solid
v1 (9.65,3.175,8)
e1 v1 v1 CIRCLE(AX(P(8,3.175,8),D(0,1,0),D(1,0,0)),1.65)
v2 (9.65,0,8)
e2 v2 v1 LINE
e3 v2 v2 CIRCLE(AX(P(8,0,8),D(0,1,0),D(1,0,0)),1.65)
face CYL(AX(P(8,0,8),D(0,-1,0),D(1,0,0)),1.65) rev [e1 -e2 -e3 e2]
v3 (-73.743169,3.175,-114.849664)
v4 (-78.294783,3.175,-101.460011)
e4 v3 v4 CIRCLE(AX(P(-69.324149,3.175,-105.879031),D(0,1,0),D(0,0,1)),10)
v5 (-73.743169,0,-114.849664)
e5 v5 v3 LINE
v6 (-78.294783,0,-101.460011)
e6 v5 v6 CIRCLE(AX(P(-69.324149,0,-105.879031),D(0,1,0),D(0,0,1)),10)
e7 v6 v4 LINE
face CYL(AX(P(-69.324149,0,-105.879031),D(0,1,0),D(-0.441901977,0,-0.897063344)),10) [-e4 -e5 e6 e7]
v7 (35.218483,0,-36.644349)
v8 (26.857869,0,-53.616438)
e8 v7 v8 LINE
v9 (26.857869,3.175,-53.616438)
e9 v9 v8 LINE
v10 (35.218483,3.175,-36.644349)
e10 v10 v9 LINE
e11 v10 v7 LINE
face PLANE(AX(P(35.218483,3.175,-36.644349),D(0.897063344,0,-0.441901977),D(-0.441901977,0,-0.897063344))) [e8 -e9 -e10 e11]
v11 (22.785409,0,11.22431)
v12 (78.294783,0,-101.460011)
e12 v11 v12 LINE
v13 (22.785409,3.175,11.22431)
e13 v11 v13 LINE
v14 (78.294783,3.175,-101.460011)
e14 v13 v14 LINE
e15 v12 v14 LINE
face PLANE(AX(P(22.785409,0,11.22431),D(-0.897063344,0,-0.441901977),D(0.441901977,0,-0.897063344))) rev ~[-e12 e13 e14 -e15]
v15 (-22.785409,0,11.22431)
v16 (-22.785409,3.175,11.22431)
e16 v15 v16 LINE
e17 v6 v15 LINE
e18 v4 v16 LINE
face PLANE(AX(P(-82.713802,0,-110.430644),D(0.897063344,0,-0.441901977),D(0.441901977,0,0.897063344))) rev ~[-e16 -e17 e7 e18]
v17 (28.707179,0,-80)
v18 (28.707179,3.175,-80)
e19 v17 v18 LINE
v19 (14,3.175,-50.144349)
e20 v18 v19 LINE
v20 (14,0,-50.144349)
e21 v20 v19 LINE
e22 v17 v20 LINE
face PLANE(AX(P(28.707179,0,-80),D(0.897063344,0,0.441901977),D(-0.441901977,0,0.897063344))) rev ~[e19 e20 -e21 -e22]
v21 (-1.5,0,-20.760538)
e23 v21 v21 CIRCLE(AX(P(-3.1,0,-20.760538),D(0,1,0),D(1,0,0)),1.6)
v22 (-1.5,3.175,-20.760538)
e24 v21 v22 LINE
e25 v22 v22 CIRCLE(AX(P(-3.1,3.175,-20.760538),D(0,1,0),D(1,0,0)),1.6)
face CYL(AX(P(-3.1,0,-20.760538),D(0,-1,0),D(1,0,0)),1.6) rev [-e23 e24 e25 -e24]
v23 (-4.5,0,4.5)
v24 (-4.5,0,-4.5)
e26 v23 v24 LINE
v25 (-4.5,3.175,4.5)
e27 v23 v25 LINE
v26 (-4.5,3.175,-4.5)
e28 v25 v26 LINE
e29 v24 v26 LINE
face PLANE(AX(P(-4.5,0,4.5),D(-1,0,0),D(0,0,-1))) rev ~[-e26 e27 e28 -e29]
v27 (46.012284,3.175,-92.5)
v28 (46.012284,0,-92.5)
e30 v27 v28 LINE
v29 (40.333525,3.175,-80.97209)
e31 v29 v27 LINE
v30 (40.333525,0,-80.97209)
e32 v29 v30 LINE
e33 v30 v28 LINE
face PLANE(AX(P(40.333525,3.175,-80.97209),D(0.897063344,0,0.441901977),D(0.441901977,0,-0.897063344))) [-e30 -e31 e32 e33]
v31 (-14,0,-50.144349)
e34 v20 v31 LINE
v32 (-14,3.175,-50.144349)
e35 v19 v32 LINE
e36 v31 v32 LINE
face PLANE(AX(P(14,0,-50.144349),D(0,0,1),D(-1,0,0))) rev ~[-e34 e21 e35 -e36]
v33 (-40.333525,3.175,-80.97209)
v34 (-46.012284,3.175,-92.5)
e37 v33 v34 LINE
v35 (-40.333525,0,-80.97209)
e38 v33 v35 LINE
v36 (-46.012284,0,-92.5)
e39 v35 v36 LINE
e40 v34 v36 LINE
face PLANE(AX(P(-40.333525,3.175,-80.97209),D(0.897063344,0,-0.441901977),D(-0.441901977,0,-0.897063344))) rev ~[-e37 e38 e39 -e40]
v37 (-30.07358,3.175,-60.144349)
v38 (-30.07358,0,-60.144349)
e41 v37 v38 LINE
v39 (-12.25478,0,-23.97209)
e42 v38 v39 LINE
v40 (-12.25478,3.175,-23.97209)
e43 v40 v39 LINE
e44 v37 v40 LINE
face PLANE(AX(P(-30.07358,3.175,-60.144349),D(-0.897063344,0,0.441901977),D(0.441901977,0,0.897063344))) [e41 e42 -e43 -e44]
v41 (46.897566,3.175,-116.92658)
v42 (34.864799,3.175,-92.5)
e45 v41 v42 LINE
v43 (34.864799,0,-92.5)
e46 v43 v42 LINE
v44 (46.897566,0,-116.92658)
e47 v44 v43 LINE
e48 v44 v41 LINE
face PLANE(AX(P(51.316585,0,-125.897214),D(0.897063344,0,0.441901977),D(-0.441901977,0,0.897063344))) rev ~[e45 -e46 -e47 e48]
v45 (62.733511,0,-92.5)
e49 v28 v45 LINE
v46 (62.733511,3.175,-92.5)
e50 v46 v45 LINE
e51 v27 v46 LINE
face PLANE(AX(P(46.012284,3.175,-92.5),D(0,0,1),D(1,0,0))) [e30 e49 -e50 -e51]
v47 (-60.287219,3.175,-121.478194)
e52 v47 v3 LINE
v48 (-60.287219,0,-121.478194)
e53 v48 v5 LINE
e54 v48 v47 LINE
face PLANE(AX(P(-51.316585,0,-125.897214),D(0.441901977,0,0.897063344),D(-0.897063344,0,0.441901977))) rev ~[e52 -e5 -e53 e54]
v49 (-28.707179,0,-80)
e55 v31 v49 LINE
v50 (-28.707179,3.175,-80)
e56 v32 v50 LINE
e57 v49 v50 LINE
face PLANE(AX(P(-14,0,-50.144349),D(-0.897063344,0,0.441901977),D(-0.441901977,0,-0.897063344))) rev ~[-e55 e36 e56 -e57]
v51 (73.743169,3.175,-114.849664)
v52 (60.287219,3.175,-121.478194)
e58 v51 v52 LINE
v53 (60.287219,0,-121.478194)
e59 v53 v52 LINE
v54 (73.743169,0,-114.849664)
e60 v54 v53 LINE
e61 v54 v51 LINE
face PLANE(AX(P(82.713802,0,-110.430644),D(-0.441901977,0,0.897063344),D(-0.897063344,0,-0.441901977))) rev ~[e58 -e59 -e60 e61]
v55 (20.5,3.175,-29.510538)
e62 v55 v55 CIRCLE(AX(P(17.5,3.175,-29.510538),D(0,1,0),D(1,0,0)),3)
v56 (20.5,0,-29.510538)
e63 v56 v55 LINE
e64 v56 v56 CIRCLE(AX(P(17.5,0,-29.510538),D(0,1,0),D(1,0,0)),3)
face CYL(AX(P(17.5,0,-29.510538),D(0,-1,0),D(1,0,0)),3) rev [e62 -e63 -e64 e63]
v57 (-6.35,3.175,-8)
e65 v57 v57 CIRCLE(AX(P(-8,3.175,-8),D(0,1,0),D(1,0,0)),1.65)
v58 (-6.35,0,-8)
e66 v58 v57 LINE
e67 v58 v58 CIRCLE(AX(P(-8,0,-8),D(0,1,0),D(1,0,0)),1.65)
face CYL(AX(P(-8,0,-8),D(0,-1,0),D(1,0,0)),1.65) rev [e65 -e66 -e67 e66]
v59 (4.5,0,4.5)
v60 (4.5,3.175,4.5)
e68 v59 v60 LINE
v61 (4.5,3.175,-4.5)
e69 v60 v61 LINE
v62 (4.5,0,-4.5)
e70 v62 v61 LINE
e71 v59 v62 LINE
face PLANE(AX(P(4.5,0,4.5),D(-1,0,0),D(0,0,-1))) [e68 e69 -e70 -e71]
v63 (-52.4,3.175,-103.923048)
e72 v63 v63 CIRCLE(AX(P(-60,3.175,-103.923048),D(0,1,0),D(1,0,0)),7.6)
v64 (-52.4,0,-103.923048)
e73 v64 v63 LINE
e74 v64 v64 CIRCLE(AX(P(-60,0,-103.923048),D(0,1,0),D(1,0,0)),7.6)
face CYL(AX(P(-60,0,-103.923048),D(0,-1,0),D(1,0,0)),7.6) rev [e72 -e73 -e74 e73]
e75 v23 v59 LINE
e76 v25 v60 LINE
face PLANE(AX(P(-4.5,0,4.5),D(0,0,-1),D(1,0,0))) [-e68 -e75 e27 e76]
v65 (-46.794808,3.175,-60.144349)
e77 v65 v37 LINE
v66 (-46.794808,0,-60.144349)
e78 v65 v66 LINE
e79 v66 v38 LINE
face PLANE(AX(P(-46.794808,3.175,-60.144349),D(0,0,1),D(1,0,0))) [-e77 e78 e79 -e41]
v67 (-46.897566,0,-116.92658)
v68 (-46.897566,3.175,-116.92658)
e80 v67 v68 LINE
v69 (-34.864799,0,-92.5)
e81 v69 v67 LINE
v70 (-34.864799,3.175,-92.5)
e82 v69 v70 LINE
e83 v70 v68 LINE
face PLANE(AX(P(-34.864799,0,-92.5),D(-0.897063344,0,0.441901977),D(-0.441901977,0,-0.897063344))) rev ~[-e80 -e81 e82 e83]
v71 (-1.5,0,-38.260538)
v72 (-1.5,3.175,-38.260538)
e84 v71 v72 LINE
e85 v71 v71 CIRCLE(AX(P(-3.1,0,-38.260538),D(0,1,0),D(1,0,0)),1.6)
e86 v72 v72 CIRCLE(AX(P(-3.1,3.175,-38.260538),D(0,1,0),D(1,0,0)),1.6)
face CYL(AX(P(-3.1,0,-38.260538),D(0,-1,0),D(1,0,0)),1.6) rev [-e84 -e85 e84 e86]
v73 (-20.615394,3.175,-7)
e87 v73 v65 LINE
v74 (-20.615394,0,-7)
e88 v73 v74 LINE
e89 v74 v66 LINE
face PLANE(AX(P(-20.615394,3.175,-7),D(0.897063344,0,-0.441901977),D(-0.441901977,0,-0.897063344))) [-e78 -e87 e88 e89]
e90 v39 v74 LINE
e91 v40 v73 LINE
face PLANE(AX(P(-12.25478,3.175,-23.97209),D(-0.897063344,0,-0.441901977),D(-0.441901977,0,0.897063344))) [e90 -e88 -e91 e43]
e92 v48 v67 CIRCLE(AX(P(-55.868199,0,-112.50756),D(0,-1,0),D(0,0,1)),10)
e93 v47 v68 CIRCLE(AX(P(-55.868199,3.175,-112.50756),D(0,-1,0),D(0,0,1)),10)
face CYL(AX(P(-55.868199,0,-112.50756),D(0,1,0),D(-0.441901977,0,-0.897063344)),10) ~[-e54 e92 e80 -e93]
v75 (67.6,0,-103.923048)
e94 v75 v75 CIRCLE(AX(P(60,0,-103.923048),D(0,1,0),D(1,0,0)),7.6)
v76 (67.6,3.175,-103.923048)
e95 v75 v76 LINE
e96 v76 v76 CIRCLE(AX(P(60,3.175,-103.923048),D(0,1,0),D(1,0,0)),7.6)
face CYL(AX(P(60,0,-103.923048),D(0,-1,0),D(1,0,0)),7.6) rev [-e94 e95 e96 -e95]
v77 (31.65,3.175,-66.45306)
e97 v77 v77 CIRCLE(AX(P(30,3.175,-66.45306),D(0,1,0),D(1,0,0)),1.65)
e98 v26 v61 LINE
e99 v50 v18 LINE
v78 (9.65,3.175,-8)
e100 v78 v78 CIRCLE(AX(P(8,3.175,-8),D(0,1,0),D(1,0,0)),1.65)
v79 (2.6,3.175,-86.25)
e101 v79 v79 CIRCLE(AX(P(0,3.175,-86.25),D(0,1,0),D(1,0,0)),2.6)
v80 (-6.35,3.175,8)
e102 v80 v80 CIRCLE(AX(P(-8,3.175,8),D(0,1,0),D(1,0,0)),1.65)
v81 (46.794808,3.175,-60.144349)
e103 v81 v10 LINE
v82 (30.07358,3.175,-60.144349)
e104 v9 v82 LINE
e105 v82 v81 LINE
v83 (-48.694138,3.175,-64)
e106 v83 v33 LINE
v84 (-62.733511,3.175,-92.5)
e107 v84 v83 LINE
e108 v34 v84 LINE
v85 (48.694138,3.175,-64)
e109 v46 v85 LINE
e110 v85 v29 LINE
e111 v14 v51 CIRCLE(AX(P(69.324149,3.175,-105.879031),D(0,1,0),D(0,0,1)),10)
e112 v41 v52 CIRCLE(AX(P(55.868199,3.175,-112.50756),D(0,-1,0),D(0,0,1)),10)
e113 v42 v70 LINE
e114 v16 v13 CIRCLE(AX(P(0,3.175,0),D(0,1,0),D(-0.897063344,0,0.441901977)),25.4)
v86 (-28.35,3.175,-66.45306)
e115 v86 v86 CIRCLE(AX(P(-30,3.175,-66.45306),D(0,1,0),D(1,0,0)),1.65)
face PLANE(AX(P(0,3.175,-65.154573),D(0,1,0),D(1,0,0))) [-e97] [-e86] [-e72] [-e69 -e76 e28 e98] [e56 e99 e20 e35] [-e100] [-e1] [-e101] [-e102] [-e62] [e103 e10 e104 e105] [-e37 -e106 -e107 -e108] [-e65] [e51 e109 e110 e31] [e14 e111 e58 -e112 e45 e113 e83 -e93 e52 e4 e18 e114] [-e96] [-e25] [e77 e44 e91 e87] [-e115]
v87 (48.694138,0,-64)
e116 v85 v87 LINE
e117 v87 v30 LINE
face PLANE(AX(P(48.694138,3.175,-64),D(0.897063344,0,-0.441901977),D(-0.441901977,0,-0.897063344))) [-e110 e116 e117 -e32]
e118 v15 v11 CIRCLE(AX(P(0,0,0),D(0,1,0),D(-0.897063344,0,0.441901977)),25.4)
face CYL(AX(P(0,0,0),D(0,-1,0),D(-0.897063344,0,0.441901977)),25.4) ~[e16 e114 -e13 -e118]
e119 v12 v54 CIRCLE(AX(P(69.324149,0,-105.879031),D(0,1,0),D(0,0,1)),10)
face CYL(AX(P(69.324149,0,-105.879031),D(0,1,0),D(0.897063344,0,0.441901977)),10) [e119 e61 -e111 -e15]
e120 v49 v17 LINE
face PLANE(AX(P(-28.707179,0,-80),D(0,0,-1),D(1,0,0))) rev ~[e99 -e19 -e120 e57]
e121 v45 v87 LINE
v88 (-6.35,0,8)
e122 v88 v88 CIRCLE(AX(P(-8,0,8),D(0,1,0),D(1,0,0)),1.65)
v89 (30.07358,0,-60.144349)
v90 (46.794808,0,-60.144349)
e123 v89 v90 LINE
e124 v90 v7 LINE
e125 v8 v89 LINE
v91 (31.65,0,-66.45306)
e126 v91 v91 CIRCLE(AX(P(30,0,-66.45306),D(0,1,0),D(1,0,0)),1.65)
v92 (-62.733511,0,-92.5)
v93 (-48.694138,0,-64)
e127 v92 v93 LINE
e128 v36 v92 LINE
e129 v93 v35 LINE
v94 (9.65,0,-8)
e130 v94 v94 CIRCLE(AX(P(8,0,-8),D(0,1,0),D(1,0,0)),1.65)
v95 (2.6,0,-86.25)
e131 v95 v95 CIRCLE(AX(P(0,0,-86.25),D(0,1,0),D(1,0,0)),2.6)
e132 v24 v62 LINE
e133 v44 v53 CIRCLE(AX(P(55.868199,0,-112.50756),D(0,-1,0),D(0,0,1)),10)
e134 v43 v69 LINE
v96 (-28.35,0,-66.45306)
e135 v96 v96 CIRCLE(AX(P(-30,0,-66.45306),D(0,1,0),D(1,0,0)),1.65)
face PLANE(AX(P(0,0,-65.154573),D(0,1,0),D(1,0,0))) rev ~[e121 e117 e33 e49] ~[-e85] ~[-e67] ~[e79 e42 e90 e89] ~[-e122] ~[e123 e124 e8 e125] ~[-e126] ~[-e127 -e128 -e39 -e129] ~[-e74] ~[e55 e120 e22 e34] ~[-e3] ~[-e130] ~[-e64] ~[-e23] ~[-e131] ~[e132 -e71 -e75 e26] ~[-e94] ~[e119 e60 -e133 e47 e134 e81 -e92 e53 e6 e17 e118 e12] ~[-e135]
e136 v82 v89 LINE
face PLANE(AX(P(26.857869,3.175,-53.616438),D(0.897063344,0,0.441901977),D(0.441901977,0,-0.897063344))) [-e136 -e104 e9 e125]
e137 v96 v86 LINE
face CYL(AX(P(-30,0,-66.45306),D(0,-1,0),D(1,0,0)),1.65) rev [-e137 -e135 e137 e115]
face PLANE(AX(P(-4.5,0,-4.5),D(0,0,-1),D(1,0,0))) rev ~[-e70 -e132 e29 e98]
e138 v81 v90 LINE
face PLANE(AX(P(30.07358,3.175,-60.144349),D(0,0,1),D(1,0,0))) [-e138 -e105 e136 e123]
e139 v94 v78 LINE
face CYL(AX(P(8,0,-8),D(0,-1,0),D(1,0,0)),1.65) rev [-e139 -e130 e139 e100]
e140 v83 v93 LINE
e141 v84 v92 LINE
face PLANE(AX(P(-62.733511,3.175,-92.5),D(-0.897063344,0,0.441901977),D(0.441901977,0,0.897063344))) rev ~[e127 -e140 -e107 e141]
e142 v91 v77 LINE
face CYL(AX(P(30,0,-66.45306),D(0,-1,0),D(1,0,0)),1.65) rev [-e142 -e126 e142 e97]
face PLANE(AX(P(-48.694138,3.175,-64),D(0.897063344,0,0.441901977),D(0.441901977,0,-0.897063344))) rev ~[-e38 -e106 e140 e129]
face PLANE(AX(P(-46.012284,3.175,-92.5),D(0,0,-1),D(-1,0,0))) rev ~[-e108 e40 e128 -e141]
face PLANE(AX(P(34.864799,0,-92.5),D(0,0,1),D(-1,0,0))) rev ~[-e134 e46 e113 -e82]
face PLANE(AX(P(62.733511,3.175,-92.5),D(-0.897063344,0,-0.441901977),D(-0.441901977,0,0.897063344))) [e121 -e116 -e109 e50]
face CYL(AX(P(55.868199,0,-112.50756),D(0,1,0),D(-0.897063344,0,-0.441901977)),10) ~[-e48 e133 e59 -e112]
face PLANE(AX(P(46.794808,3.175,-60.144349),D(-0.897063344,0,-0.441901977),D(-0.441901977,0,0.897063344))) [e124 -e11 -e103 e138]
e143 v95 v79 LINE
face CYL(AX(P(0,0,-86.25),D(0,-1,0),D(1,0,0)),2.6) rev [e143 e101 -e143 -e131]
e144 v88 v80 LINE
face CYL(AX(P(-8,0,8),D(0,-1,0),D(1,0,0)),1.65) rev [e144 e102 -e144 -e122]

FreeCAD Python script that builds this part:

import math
import FreeCAD as App
import Part
import Sketcher
from FreeCAD import Vector


def edges_at(feature, points):
    """Names of the edges that pass closest to the given points."""
    edges = feature.Shape.Edges
    near = lambda p: min(range(len(edges)), key=lambda i: edges[i].distToShape(Part.Vertex(*p))[0])
    return sorted({f"Edge{near(p) + 1}" for p in points})

doc = App.newDocument("Part")
body = doc.addObject("PartDesign::Body", "Body")

# Sketch on XZ plane
sketch1 = body.newObject("Sketcher::SketchObject", "Sketch")
sketch1.AttachmentSupport = (doc.getObject("XZ_Plane"), [""])
sketch1.MapMode = "FlatFace"
sketch1.addGeometry([
    Part.LineSegment(Vector(-51.3, -125.9, 0), Vector(-82.7, -110.4, 0)),  # 0
    Part.LineSegment(Vector(-82.7, -110.4, 0), Vector(-22.8, 11.2, 0)),  # 1
    Part.ArcOfCircle(Part.Circle(Vector(0, 0, 0), Vector(0, 0, 1), 25.4), math.radians(26), math.radians(154)),  # 2
    Part.LineSegment(Vector(22.8, 11.2, 0), Vector(82.7, -110.4, 0)),  # 3
    Part.LineSegment(Vector(82.7, -110.4, 0), Vector(51.3, -125.9, 0)),  # 4
    Part.LineSegment(Vector(51.3, -125.9, 0), Vector(34.9, -92.5, 0)),  # 5
    Part.LineSegment(Vector(34.9, -92.5, 0), Vector(-34.9, -92.5, 0)),  # 6
    Part.LineSegment(Vector(-34.9, -92.5, 0), Vector(-51.3, -125.9, 0)),  # 7
    Part.Circle(Vector(-8, 8, 0), Vector(0, 0, 1), 1.6),  # 8
    Part.Circle(Vector(-8, -8, 0), Vector(0, 0, 1), 1.6),  # 9
    Part.Circle(Vector(-3.1, -20.8, 0), Vector(0, 0, 1), 1.6),  # 10
    Part.Circle(Vector(-3.1, -38.3, 0), Vector(0, 0, 1), 1.6),  # 11
    Part.Circle(Vector(8, 8, 0), Vector(0, 0, 1), 1.6),  # 12
    Part.LineSegment(Vector(4.5, 4.5, 0), Vector(-4.5, 4.5, 0)),  # 13
    Part.LineSegment(Vector(-4.5, 4.5, 0), Vector(-4.5, -4.5, 0)),  # 14
    Part.LineSegment(Vector(-4.5, -4.5, 0), Vector(4.5, -4.5, 0)),  # 15
    Part.LineSegment(Vector(4.5, -4.5, 0), Vector(4.5, 4.5, 0)),  # 16
    Part.Circle(Vector(8, -8, 0), Vector(0, 0, 1), 1.6),  # 17
    Part.Circle(Vector(17.5, -29.5, 0), Vector(0, 0, 1), 3),  # 18
    Part.Circle(Vector(-30, -66.5, 0), Vector(0, 0, 1), 1.6),  # 19
    Part.Circle(Vector(-60, -103.9, 0), Vector(0, 0, 1), 7.6),  # 20
    Part.LineSegment(Vector(-14, -50.1, 0), Vector(-28.7, -80, 0)),  # 21
    Part.LineSegment(Vector(-28.7, -80, 0), Vector(28.7, -80, 0)),  # 22
    Part.LineSegment(Vector(28.7, -80, 0), Vector(14, -50.1, 0)),  # 23
    Part.LineSegment(Vector(14, -50.1, 0), Vector(-14, -50.1, 0)),  # 24
    Part.Circle(Vector(30, -66.5, 0), Vector(0, 0, 1), 1.6),  # 25
    Part.Circle(Vector(0, -86.2, 0), Vector(0, 0, 1), 2.6),  # 26
    Part.Circle(Vector(60, -103.9, 0), Vector(0, 0, 1), 7.6),  # 27
], False)
sketch1.addConstraint([
    Sketcher.Constraint("Coincident", 0, 2, 1, 1),
    Sketcher.Constraint("Tangent", 1, 2, 2, 2),
    Sketcher.Constraint("Tangent", 2, 1, 3, 1),
    Sketcher.Constraint("Coincident", 3, 2, 4, 1),
    Sketcher.Constraint("Coincident", 4, 2, 5, 1),
    Sketcher.Constraint("Coincident", 5, 2, 6, 1),
    Sketcher.Constraint("Coincident", 6, 2, 7, 1),
    Sketcher.Constraint("Coincident", 7, 2, 0, 1),
    Sketcher.Constraint("Coincident", 13, 2, 14, 1),
    Sketcher.Constraint("Coincident", 14, 2, 15, 1),
    Sketcher.Constraint("Coincident", 15, 2, 16, 1),
    Sketcher.Constraint("Coincident", 16, 2, 13, 1),
    Sketcher.Constraint("Coincident", 21, 2, 22, 1),
    Sketcher.Constraint("Coincident", 22, 2, 23, 1),
    Sketcher.Constraint("Coincident", 23, 2, 24, 1),
    Sketcher.Constraint("Coincident", 24, 2, 21, 1),
    Sketcher.Constraint("Horizontal", 6),
    Sketcher.Constraint("Horizontal", 13),
    Sketcher.Constraint("Vertical", 14),
    Sketcher.Constraint("Horizontal", 15),
    Sketcher.Constraint("Vertical", 16),
    Sketcher.Constraint("Horizontal", 22),
    Sketcher.Constraint("Horizontal", 24),
    Sketcher.Constraint("Coincident", 2, 3, -1, 1),
    Sketcher.Constraint("Equal", 8, 9),
    Sketcher.Constraint("Equal", 10, 11),
    Sketcher.Constraint("Equal", 9, 12),
    Sketcher.Constraint("Equal", 12, 17),
    Sketcher.Constraint("Equal", 17, 19),
    Sketcher.Constraint("Equal", 19, 25),
    Sketcher.Constraint("Equal", 20, 27),
    Sketcher.Constraint("Symmetric", 9, 3, 12, 3, -1, 1),
    Sketcher.Constraint("Symmetric", 8, 3, 17, 3, -1, 1),
    Sketcher.Constraint("Symmetric", 13, 2, 15, 2, -1, 1),
    Sketcher.Constraint("Symmetric", 8, 3, 12, 3, -2),
    Sketcher.Constraint("Symmetric", 19, 3, 25, 3, -2),
    Sketcher.Constraint("Symmetric", 20, 3, 27, 3, -2),
    Sketcher.Constraint("Symmetric", 0, 2, 3, 2, -2),
    Sketcher.Constraint("Symmetric", 4, 2, 7, 2, -2),
    Sketcher.Constraint("PointOnObject", 26, 3, -2),
    Sketcher.Constraint("Perpendicular", 0, 1),
    Sketcher.Constraint("Perpendicular", 4, 5),
    Sketcher.Constraint("Parallel", 1, 7),
    Sketcher.Constraint("Parallel", 7, 21),
    Sketcher.Constraint("Parallel", 5, 23),
    Sketcher.Constraint("Vertical", 10, 3, 11, 3),
    Sketcher.Constraint("Equal", 15, 14),
    Sketcher.Constraint("Diameter", 18, 6.0),
    Sketcher.Constraint("Diameter", 8, 3.3),
    Sketcher.Constraint("Diameter", 10, 3.2),
    Sketcher.Constraint("Diameter", 20, 15.2),
    Sketcher.Constraint("Diameter", 26, 5.2),
    Sketcher.Constraint("Radius", 2, 25.4),
    Sketcher.Constraint("DistanceX", 13, 2, 13, 1, 9.0),
    Sketcher.Constraint("DistanceX", 24, 2, 24, 1, 28.0),
    Sketcher.Constraint("Distance", 0, 35.0),
    Sketcher.Constraint("DistanceX", 8, 3, -1, 1, 8.0),
    Sketcher.Constraint("DistanceY", -1, 1, 8, 3, 8.0),
    Sketcher.Constraint("DistanceX", 19, 3, -1, 1, 30.0),
    Sketcher.Constraint("DistanceX", 20, 3, -1, 1, 60.0),
    Sketcher.Constraint("DistanceY", 21, 2, -1, 1, 80.0),
    Sketcher.Constraint("DistanceX", -1, 1, 23, 2, 14.0),
    Sketcher.Constraint("DistanceX", 10, 3, -1, 1, 3.1),
    Sketcher.Constraint("DistanceX", -1, 1, 18, 3, 17.5),
    Sketcher.Constraint("DistanceY", 5, 2, -1, 1, 92.5),
    Sketcher.Constraint("DistanceY", 11, 3, 10, 3, 17.5),
    Sketcher.Constraint("DistanceY", 26, 3, -1, 1, 86.25),
    Sketcher.Constraint("DistanceY", 18, 3, 10, 3, 8.75),
    Sketcher.Constraint("DistanceX", 22, 1, 22, 2, 57.414358),
    Sketcher.Constraint("DistanceX", -1, 1, 5, 2, 34.864799),
    Sketcher.Constraint("DistanceY", 19, 3, -1, 1, 66.45306),
    Sketcher.Constraint("DistanceY", 20, 3, -1, 1, 103.923048),
    Sketcher.Constraint("DistanceY", 20, 3, 11, 3, 65.662511),
    Sketcher.Constraint("Distance", 1, 135.614676),
])
pad1 = body.newObject("PartDesign::Pad", "Pad")
pad1.Profile = sketch1
pad1.Length = 3.175
pad1.Reversed = True
doc.recompute()

fillet = body.newObject("PartDesign::Fillet", "Fillet")
fillet.Base = (pad1, edges_at(pad1, [
    (51.317, 1.587, -125.897),
    (82.714, 1.587, -110.431),
    (-82.714, 1.587, -110.431),
    (-51.317, 1.587, -125.897),
]))
fillet.Radius = 10

# Sketch on XZ plane
sketch2 = body.newObject("Sketcher::SketchObject", "Sketch001")
sketch2.AttachmentSupport = (doc.getObject("XZ_Plane"), [""])
sketch2.MapMode = "FlatFace"
sketch2.AttachmentOffset = App.Placement(Vector(0, 0, -3.175), App.Rotation())
sketch2.addGeometry([
    Part.LineSegment(Vector(-30, -60, 0), Vector(-47, -60, 0)),  # 0
    Part.LineSegment(Vector(-47, -60, 0), Vector(-21, -7, 0)),  # 1
    Part.LineSegment(Vector(-21, -7, 0), Vector(-12, -24, 0)),  # 2
    Part.LineSegment(Vector(-12, -24, 0), Vector(-30, -60, 0)),  # 3
    Part.LineSegment(Vector(-63, -92, 0), Vector(-49, -64, 0)),  # 4
    Part.LineSegment(Vector(-49, -64, 0), Vector(-40, -81, 0)),  # 5
    Part.LineSegment(Vector(-40, -81, 0), Vector(-46, -92, 0)),  # 6
    Part.LineSegment(Vector(-46, -92, 0), Vector(-63, -92, 0)),  # 7
    Part.LineSegment(Vector(47, -60, 0), Vector(30, -60, 0)),  # 8
    Part.LineSegment(Vector(30, -60, 0), Vector(27, -54, 0)),  # 9
    Part.LineSegment(Vector(27, -54, 0), Vector(35, -37, 0)),  # 10
    Part.LineSegment(Vector(35, -37, 0), Vector(47, -60, 0)),  # 11
    Part.LineSegment(Vector(63, -92, 0), Vector(46, -92, 0)),  # 12
    Part.LineSegment(Vector(46, -92, 0), Vector(40, -81, 0)),  # 13
    Part.LineSegment(Vector(40, -81, 0), Vector(49, -64, 0)),  # 14
    Part.LineSegment(Vector(49, -64, 0), Vector(63, -92, 0)),  # 15
], False)
sketch2.addConstraint([
    Sketcher.Constraint("Coincident", 0, 2, 1, 1),
    Sketcher.Constraint("Coincident", 1, 2, 2, 1),
    Sketcher.Constraint("Coincident", 2, 2, 3, 1),
    Sketcher.Constraint("Coincident", 3, 2, 0, 1),
    Sketcher.Constraint("Coincident", 4, 2, 5, 1),
    Sketcher.Constraint("Coincident", 5, 2, 6, 1),
    Sketcher.Constraint("Coincident", 6, 2, 7, 1),
    Sketcher.Constraint("Coincident", 7, 2, 4, 1),
    Sketcher.Constraint("Coincident", 8, 2, 9, 1),
    Sketcher.Constraint("Coincident", 9, 2, 10, 1),
    Sketcher.Constraint("Coincident", 10, 2, 11, 1),
    Sketcher.Constraint("Coincident", 11, 2, 8, 1),
    Sketcher.Constraint("Coincident", 12, 2, 13, 1),
    Sketcher.Constraint("Coincident", 13, 2, 14, 1),
    Sketcher.Constraint("Coincident", 14, 2, 15, 1),
    Sketcher.Constraint("Coincident", 15, 2, 12, 1),
    Sketcher.Constraint("Horizontal", 0),
    Sketcher.Constraint("Horizontal", 7),
    Sketcher.Constraint("Horizontal", 8),
    Sketcher.Constraint("Horizontal", 12),
    Sketcher.Constraint("Symmetric", 3, 2, 8, 2, -2),
    Sketcher.Constraint("Symmetric", 6, 2, 12, 2, -2),
    Sketcher.Constraint("Symmetric", 5, 2, 13, 2, -2),
    Sketcher.Constraint("Symmetric", 4, 2, 14, 2, -2),
    Sketcher.Constraint("Parallel", 1, 3),
    Sketcher.Constraint("Parallel", 3, 4),
    Sketcher.Constraint("Parallel", 2, 5),
    Sketcher.Constraint("Parallel", 4, 6),
    Sketcher.Constraint("Parallel", 5, 9),
    Sketcher.Constraint("Parallel", 6, 10),
    Sketcher.Constraint("Parallel", 9, 11),
    Sketcher.Constraint("Parallel", 11, 13),
    Sketcher.Constraint("Parallel", 13, 15),
    Sketcher.Constraint("Equal", 0, 7),
    Sketcher.Constraint("Equal", 7, 8),
    Sketcher.Constraint("DistanceY", 1, 2, -1, 1, 7.0),
    Sketcher.Constraint("DistanceY", 4, 2, -1, 1, 64.0),
    Sketcher.Constraint("DistanceY", 6, 2, -1, 1, 92.5),
    Sketcher.Constraint("DistanceY", 8, 2, 10, 2, 23.5),
    Sketcher.Constraint("DistanceX", 3, 2, 2, 2, 17.8188),
    Sketcher.Constraint("DistanceX", 10, 2, 12, 2, 10.793801),
    Sketcher.Constraint("Distance", 1, 59.242582),
    Sketcher.Constraint("Distance", 2, 18.919611),
    Sketcher.Constraint("DistanceX", 2, 2, -1, 1, 12.25478),
])
pocket1 = body.newObject("PartDesign::Pocket", "Pocket")
pocket1.Profile = sketch2
pocket1.Type = "ThroughAll"
pocket1.Midplane = True

doc.recompute()
